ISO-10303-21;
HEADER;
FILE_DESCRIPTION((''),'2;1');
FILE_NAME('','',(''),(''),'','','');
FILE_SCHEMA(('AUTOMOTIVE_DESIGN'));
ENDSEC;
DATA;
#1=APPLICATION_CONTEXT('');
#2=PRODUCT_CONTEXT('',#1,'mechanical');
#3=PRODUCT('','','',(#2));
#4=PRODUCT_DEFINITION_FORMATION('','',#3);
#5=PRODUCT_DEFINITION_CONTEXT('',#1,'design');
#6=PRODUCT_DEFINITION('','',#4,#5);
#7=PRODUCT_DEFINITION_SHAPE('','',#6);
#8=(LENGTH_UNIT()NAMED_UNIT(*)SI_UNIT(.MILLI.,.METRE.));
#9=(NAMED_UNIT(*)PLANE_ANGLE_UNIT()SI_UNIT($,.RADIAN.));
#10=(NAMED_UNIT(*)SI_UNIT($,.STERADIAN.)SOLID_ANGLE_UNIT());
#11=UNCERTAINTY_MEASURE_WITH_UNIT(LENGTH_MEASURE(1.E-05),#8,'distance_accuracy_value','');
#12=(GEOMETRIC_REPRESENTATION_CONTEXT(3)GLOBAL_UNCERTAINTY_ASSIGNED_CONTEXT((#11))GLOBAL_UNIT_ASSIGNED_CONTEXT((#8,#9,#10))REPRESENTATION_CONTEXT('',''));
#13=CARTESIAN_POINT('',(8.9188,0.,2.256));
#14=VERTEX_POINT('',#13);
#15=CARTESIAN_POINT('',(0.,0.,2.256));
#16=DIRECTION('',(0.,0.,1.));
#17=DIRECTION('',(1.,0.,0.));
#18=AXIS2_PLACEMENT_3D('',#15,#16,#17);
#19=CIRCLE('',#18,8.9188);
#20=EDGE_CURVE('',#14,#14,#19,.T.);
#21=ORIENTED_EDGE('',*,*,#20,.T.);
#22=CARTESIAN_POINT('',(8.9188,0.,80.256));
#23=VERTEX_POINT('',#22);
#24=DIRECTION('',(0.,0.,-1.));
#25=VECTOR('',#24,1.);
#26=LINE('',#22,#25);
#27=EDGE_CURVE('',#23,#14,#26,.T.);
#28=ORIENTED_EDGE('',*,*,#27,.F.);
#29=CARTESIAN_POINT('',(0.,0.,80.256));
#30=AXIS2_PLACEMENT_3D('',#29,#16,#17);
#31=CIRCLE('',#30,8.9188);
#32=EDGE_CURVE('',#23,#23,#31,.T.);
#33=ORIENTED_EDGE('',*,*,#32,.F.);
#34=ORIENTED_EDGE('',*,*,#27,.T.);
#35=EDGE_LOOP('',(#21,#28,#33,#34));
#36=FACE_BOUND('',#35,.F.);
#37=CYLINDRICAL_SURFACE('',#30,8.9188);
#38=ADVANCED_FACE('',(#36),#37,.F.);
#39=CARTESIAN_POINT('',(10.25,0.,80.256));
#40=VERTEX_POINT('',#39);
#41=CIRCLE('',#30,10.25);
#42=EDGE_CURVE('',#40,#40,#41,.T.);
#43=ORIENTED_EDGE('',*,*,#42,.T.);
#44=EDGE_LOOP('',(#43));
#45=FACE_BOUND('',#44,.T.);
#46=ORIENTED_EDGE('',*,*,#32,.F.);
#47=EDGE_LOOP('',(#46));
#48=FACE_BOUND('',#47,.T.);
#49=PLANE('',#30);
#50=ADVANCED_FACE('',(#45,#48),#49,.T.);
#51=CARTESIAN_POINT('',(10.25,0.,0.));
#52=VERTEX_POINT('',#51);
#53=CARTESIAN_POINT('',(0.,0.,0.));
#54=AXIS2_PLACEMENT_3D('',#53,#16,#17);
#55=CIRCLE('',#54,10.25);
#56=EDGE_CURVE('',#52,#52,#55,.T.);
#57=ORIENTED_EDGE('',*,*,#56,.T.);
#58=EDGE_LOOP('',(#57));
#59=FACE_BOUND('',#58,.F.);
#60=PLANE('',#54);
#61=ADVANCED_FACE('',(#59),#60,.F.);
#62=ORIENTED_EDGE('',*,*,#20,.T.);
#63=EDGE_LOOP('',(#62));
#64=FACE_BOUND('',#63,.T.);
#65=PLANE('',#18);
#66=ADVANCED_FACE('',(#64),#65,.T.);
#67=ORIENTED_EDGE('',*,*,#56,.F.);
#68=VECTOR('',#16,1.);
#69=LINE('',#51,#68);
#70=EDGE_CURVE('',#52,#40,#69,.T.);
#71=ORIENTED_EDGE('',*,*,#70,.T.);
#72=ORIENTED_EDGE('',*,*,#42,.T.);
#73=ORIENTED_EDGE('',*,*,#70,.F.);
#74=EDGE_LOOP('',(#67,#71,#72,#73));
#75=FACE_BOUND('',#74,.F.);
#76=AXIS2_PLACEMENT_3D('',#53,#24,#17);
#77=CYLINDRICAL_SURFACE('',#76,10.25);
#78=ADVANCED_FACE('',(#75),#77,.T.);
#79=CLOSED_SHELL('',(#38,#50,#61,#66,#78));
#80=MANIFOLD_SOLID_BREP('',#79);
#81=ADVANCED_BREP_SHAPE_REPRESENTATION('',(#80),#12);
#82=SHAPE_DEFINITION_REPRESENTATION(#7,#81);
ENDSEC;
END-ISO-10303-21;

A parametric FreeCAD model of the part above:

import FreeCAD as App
import Part
import Sketcher
from FreeCAD import Vector
Q = App.Units.Quantity

doc = App.newDocument("Part")
body = doc.addObject("PartDesign::Body", "Body")

sketch1 = body.newObject("Sketcher::SketchObject", "Sketch")
sketch1.AttachmentSupport = (doc.getObject("XY_Plane"), [""])
sketch1.MapMode = "FlatFace"
sketch1.addGeometry(Part.Circle(Vector(0, 0, 0), Vector(0, 0, 1), 10), False)
sketch1.addConstraint(Sketcher.Constraint("Coincident", 0, 3, -1, 1))
sketch1.addConstraint(Sketcher.Constraint("Diameter", 0, Q("20.5 mm")))
pad1 = body.newObject("PartDesign::Pad", "Pad")
pad1.Profile = sketch1
pad1.Length = 80.256

sketch2 = body.newObject("Sketcher::SketchObject", "Sketch001")
sketch2.AttachmentSupport = (doc.getObject("XY_Plane"), [""])
sketch2.MapMode = "FlatFace"
sketch2.AttachmentOffset = App.Placement(Vector(0, 0, 80.256), App.Rotation())
sketch2.addGeometry(Part.Circle(Vector(0, 0, 0), Vector(0, 0, 1), 9), False)
sketch2.addConstraint(Sketcher.Constraint("Coincident", 0, 3, -1, 1))
sketch2.addConstraint(Sketcher.Constraint("Diameter", 0, Q("17.8376 mm")))
pocket1 = body.newObject("PartDesign::Pocket", "Pocket")
pocket1.Profile = sketch2
pocket1.Length = 78

doc.recompute()
